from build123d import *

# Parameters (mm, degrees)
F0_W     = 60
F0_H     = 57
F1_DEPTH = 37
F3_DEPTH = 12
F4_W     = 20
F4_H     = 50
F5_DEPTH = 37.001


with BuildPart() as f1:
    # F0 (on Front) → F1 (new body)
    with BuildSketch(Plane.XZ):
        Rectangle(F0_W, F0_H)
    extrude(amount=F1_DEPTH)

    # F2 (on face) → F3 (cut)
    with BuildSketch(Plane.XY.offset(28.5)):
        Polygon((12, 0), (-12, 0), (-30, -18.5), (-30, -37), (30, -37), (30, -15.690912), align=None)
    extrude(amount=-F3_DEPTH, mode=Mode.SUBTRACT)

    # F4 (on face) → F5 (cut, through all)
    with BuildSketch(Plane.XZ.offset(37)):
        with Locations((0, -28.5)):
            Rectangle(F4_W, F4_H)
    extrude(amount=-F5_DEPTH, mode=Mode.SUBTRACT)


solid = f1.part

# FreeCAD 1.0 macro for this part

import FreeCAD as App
import Part
import Sketcher
from FreeCAD import Vector
Q = App.Units.Quantity

doc = App.newDocument("Part")
body = doc.addObject("PartDesign::Body", "Body")

# Sketch on XZ plane
sketch1 = body.newObject("Sketcher::SketchObject", "Sketch")
sketch1.AttachmentSupport = (doc.getObject("XZ_Plane"), [""])
sketch1.MapMode = "FlatFace"
sketch1.addGeometry([
    Part.LineSegment(Vector(-30, 28, 0), Vector(-30, -28, 0)),
    Part.LineSegment(Vector(-30, -28, 0), Vector(30, -28, 0)),
    Part.LineSegment(Vector(30, -28, 0), Vector(30, 28, 0)),
    Part.LineSegment(Vector(30, 28, 0), Vector(-30, 28, 0)),
], False)
sketch1.addConstraint([
    Sketcher.Constraint("Coincident", 0, 2, 1, 1),
    Sketcher.Constraint("Coincident", 1, 2, 2, 1),
    Sketcher.Constraint("Coincident", 2, 2, 3, 1),
    Sketcher.Constraint("Coincident", 3, 2, 0, 1),
    Sketcher.Constraint("Vertical", 0),
    Sketcher.Constraint("Horizontal", 1),
    Sketcher.Constraint("Vertical", 2),
    Sketcher.Constraint("Horizontal", 3),
    Sketcher.Constraint("Symmetric", 0, 2, 2, 2, -1, 1),
    Sketcher.Constraint("DistanceX", 1, 1, 1, 2, Q("60 mm")),
    Sketcher.Constraint("DistanceY", 0, 2, 0, 1, Q("57 mm")),
])
pad1 = body.newObject("PartDesign::Pad", "Pad")
pad1.Profile = sketch1
pad1.Length = 37

# Sketch on XY plane
sketch2 = body.newObject("Sketcher::SketchObject", "Sketch001")
sketch2.AttachmentSupport = (doc.getObject("XY_Plane"), [""])
sketch2.MapMode = "FlatFace"
sketch2.AttachmentOffset = App.Placement(Vector(0, 0, 28.5), App.Rotation())
sketch2.addGeometry([
    Part.LineSegment(Vector(12, 0, 0), Vector(-12, 0, 0)),  # 0
    Part.LineSegment(Vector(-12, 0, 0), Vector(-30, -18, 0)),  # 1
    Part.LineSegment(Vector(-30, -18, 0), Vector(-30, -37, 0)),  # 2
    Part.LineSegment(Vector(-30, -37, 0), Vector(30, -37, 0)),  # 3
    Part.LineSegment(Vector(30, -37, 0), Vector(30, -16, 0)),  # 4
    Part.LineSegment(Vector(30, -16, 0), Vector(12, 0, 0)),  # 5
], False)
sketch2.addConstraint([
    Sketcher.Constraint("Coincident", 0, 2, 1, 1),
    Sketcher.Constraint("Coincident", 1, 2, 2, 1),
    Sketcher.Constraint("Coincident", 2, 2, 3, 1),
    Sketcher.Constraint("Coincident", 3, 2, 4, 1),
    Sketcher.Constraint("Coincident", 4, 2, 5, 1),
    Sketcher.Constraint("Coincident", 5, 2, 0, 1),
    Sketcher.Constraint("Horizontal", 0),
    Sketcher.Constraint("Vertical", 2),
    Sketcher.Constraint("Horizontal", 3),
    Sketcher.Constraint("Vertical", 4),
    Sketcher.Constraint("Symmetric", 0, 2, 5, 2, -1, 1),
    Sketcher.Constraint("DistanceX", 0, 2, 0, 1, Q("24 mm")),
    Sketcher.Constraint("DistanceX", 3, 1, 3, 2, Q("60 mm")),
    Sketcher.Constraint("DistanceY", 2, 2, 2, 1, Q("18.5 mm")),
    Sketcher.Constraint("DistanceX", 1, 2, -1, 1, Q("30 mm")),
    Sketcher.Constraint("DistanceY", 2, 2, -1, 1, Q("37 mm")),
    Sketcher.Constraint("Distance", 5, Q("23.87896 mm")),
])
pocket1 = body.newObject("PartDesign::Pocket", "Pocket")
pocket1.Profile = sketch2
pocket1.Length = 12

# Sketch on XZ plane
sketch3 = body.newObject("Sketcher::SketchObject", "Sketch002")
sketch3.AttachmentSupport = (doc.getObject("XZ_Plane"), [""])
sketch3.MapMode = "FlatFace"
sketch3.AttachmentOffset = App.Placement(Vector(0, 0, 37), App.Rotation())
sketch3.addGeometry([
    Part.LineSegment(Vector(-10, -4, 0), Vector(-10, -54, 0)),
    Part.LineSegment(Vector(-10, -54, 0), Vector(10, -54, 0)),
    Part.LineSegment(Vector(10, -54, 0), Vector(10, -4, 0)),
    Part.LineSegment(Vector(10, -4, 0), Vector(-10, -4, 0)),
], False)
sketch3.addConstraint([
    Sketcher.Constraint("Coincident", 0, 2, 1, 1),
    Sketcher.Constraint("Coincident", 1, 2, 2, 1),
    Sketcher.Constraint("Coincident", 2, 2, 3, 1),
    Sketcher.Constraint("Coincident", 3, 2, 0, 1),
    Sketcher.Constraint("Vertical", 0),
    Sketcher.Constraint("Horizontal", 1),
    Sketcher.Constraint("Vertical", 2),
    Sketcher.Constraint("Horizontal", 3),
    Sketcher.Constraint("DistanceX", 1, 1, 1, 2, Q("20 mm")),
    Sketcher.Constraint("DistanceY", 0, 2, 0, 1, Q("50 mm")),
    Sketcher.Constraint("DistanceX", 0, 2, -1, 1, Q("10 mm")),
    Sketcher.Constraint("DistanceY", 0, 2, -1, 1, Q("53.5 mm")),
])
pocket2 = body.newObject("PartDesign::Pocket", "Pocket001")
pocket2.Profile = sketch3
pocket2.Type = "ThroughAll"

doc.recompute()
